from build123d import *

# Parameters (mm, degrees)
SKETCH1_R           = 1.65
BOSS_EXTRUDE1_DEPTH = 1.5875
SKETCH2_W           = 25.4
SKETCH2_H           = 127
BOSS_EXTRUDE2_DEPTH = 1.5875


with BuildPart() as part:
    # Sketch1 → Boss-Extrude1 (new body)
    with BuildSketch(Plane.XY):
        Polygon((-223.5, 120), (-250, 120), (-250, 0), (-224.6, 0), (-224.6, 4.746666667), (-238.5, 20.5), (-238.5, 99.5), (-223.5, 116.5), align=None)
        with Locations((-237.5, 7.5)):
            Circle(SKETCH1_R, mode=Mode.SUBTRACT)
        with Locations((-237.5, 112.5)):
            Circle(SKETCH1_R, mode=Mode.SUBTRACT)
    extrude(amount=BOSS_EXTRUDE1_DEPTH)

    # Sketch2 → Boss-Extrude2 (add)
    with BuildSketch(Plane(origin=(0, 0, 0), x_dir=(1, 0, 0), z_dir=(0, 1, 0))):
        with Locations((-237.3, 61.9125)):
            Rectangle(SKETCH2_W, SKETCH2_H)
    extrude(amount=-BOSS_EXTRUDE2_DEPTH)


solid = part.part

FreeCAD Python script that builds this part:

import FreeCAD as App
import Part
import Sketcher
Q = App.Units.Quantity

doc = App.newDocument("Part")
body = doc.addObject("PartDesign::Body", "Body")

sketch1 = body.newObject("Sketcher::SketchObject", "Sketch")
sketch1.AttachmentSupport = (doc.getObject("XY_Plane"), [""])
sketch1.MapMode = "FlatFace"
sketch1.addGeometry([
    Part.LineSegment(App.Vector(-223.5, 120, 0), App.Vector(-250, 120, 0)),
    Part.LineSegment(App.Vector(-250, 120, 0), App.Vector(-250, 0, 0)),
    Part.LineSegment(App.Vector(-250, 0, 0), App.Vector(-224.6, 0, 0)),
    Part.LineSegment(App.Vector(-224.6, 0, 0), App.Vector(-224.6, 4.746667, 0)),
    Part.LineSegment(App.Vector(-224.6, 4.746667, 0), App.Vector(-238.5, 20.5, 0)),
    Part.LineSegment(App.Vector(-238.5, 20.5, 0), App.Vector(-238.5, 99.5, 0)),
    Part.LineSegment(App.Vector(-238.5, 99.5, 0), App.Vector(-223.5, 116.5, 0)),
    Part.LineSegment(App.Vector(-223.5, 116.5, 0), App.Vector(-223.5, 120, 0)),
    Part.Circle(App.Vector(-237.5, 7.5, 0), App.Vector(0, 0, 1), 1.65),
    Part.Circle(App.Vector(-237.5, 112.5, 0), App.Vector(0, 0, 1), 1.65),
], False)
sketch1.addConstraint([
    Sketcher.Constraint("Coincident", 0, 2, 1, 1),
    Sketcher.Constraint("Coincident", 1, 2, 2, 1),
    Sketcher.Constraint("Coincident", 2, 2, 3, 1),
    Sketcher.Constraint("Coincident", 3, 2, 4, 1),
    Sketcher.Constraint("Coincident", 4, 2, 5, 1),
    Sketcher.Constraint("Coincident", 5, 2, 6, 1),
    Sketcher.Constraint("Coincident", 6, 2, 7, 1),
    Sketcher.Constraint("Coincident", 7, 2, 0, 1),
    Sketcher.Constraint("Horizontal", 0),
    Sketcher.Constraint("Vertical", 1),
    Sketcher.Constraint("Horizontal", 2),
    Sketcher.Constraint("Vertical", 3),
    Sketcher.Constraint("Vertical", 5),
    Sketcher.Constraint("Vertical", 7),
    Sketcher.Constraint("Equal", 8, 9),
    Sketcher.Constraint("PointOnObject", 1, 2, -1),
    Sketcher.Constraint("Vertical", 8, 3, 9, 3),
    Sketcher.Constraint("Diameter", 8, Q("3.3 mm")),
    Sketcher.Constraint("DistanceY", 1, 2, 1, 1, Q("120 mm")),
    Sketcher.Constraint("DistanceY", 5, 1, 5, 2, Q("79 mm")),
    Sketcher.Constraint("DistanceX", 0, 2, 0, 1, Q("26.5 mm")),
    Sketcher.Constraint("DistanceX", 2, 1, 2, 2, Q("25.4 mm")),
    Sketcher.Constraint("DistanceY", 7, 1, 7, 2, Q("3.5 mm")),
    Sketcher.Constraint("DistanceX", 0, 2, -1, 1, Q("250 mm")),
    Sketcher.Constraint("DistanceY", 8, 3, 9, 3, Q("105 mm")),
    Sketcher.Constraint("DistanceX", 4, 2, 8, 3, Q("1 mm")),
    Sketcher.Constraint("DistanceY", 8, 3, 4, 2, Q("13 mm")),
    Sketcher.Constraint("DistanceX", 9, 3, 6, 2, Q("14 mm")),
    Sketcher.Constraint("DistanceY", 9, 3, 6, 2, Q("4 mm")),
    Sketcher.Constraint("DistanceY", 3, 1, 3, 2, Q("4.746667 mm")),
])
pad1 = body.newObject("PartDesign::Pad", "Pad")
pad1.Profile = sketch1
pad1.Length = 1.5875

sketch2 = body.newObject("Sketcher::SketchObject", "Sketch001")
sketch2.AttachmentSupport = (doc.getObject("XZ_Plane"), [""])
sketch2.MapMode = "FlatFace"
sketch2.addGeometry([
    Part.LineSegment(App.Vector(-250, -125.4125, 0), App.Vector(-250, 1.5875, 0)),
    Part.LineSegment(App.Vector(-250, 1.5875, 0), App.Vector(-224.6, 1.5875, 0)),
    Part.LineSegment(App.Vector(-224.6, 1.5875, 0), App.Vector(-224.6, -125.4125, 0)),
    Part.LineSegment(App.Vector(-224.6, -125.4125, 0), App.Vector(-250, -125.4125, 0)),
], False)
sketch2.addConstraint([
    Sketcher.Constraint("Coincident", 0, 2, 1, 1),
    Sketcher.Constraint("Coincident", 1, 2, 2, 1),
    Sketcher.Constraint("Coincident", 2, 2, 3, 1),
    Sketcher.Constraint("Coincident", 3, 2, 0, 1),
    Sketcher.Constraint("Vertical", 0),
    Sketcher.Constraint("Horizontal", 1),
    Sketcher.Constraint("Vertical", 2),
    Sketcher.Constraint("Horizontal", 3),
    Sketcher.Constraint("DistanceY", 0, 1, 0, 2, Q("127 mm")),
    Sketcher.Constraint("DistanceX", 1, 1, 1, 2, Q("25.4 mm")),
    Sketcher.Constraint("DistanceX", 0, 2, -1, 1, Q("250 mm")),
    Sketcher.Constraint("DistanceY", -1, 1, 0, 2, Q("1.5875 mm")),
])
pad2 = body.newObject("PartDesign::Pad", "Pad001")
pad2.Profile = sketch2
pad2.Length = 1.5875

doc.recompute()
